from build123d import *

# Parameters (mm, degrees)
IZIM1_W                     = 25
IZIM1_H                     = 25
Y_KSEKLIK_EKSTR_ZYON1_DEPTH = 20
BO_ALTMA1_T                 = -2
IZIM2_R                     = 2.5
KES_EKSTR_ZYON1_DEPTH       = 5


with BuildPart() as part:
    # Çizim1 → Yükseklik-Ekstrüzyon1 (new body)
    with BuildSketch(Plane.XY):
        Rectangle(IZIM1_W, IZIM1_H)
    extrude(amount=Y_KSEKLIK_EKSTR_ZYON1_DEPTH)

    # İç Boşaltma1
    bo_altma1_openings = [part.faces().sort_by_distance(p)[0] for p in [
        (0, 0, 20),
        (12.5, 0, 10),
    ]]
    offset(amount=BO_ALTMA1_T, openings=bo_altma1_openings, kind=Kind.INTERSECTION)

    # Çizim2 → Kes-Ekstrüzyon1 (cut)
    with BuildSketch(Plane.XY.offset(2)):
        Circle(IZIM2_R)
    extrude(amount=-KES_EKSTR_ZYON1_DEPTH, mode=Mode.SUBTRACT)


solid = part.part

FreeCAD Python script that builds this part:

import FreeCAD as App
import Part
import Sketcher

V = App.Vector


def faces_at(feature, points):
    """Names of the faces that lie closest to the given points."""
    faces = feature.Shape.Faces
    near = lambda p: min(range(len(faces)), key=lambda i: faces[i].distToShape(Part.Vertex(*p))[0])
    return sorted({f"Face{near(p) + 1}" for p in points})

doc = App.newDocument("Part")
params = doc.addObject("Spreadsheet::Sheet", "Params")
for row, (alias, value) in enumerate([
    ("sketch1_width", "25 mm"),
    ("pad1_length", "20 mm"),
    ("thickness_wall", "2 mm"),
    ("sketch2_diameter", "5 mm"),
    ("pocket1_length", "5 mm"),
], start=1):
    params.set(f"A{row}", alias)
    params.set(f"B{row}", "=" + value)
    params.setAlias(f"B{row}", alias)

body = doc.addObject("PartDesign::Body", "Body")

# Sketch on XY plane
sketch1 = body.newObject("Sketcher::SketchObject", "Sketch")
sketch1.AttachmentSupport = (doc.getObject("XY_Plane"), [""])
sketch1.MapMode = "FlatFace"
sketch1.addGeometry([
    Part.LineSegment(V(-12, 12, 0), V(-12, -12, 0)),
    Part.LineSegment(V(-12, -12, 0), V(12, -12, 0)),
    Part.LineSegment(V(12, -12, 0), V(12, 12, 0)),
    Part.LineSegment(V(12, 12, 0), V(-12, 12, 0)),
], False)
sketch1.addConstraint([
    Sketcher.Constraint("Coincident", 0, 2, 1, 1),
    Sketcher.Constraint("Coincident", 1, 2, 2, 1),
    Sketcher.Constraint("Coincident", 2, 2, 3, 1),
    Sketcher.Constraint("Coincident", 3, 2, 0, 1),
    Sketcher.Constraint("Vertical", 0),
    Sketcher.Constraint("Horizontal", 1),
    Sketcher.Constraint("Vertical", 2),
    Sketcher.Constraint("Horizontal", 3),
    Sketcher.Constraint("Symmetric", 0, 2, 2, 2, -1, 1),
    Sketcher.Constraint("Equal", 3, 0),
    Sketcher.Constraint("DistanceX", 1, 1, 1, 2, 25.0),
])
sketch1.setExpression("Constraints[10]", "Params.sketch1_width")
pad1 = body.newObject("PartDesign::Pad", "Pad")
pad1.Profile = sketch1
pad1.setExpression("Length", "Params.pad1_length")
doc.recompute()

thickness = body.newObject("PartDesign::Thickness", "Thickness")
thickness.Base = (pad1, faces_at(pad1, [(0, 0, 20), (12.5, 0, 10)]))
thickness.setExpression("Value", "Params.thickness_wall")
thickness.Reversed = True
thickness.Join = "Intersection"

# Sketch on XY plane
sketch2 = body.newObject("Sketcher::SketchObject", "Sketch001")
sketch2.AttachmentSupport = (doc.getObject("XY_Plane"), [""])
sketch2.MapMode = "FlatFace"
sketch2.AttachmentOffset = App.Placement(V(0, 0, 2), App.Rotation())
sketch2.addGeometry(Part.Circle(V(0, 0, 0), V(0, 0, 1), 2.5), False)
sketch2.addConstraint([
    Sketcher.Constraint("Coincident", 0, 3, -1, 1),
    Sketcher.Constraint("Diameter", 0, 5.0),
])
sketch2.setExpression("Constraints[1]", "Params.sketch2_diameter")
pocket1 = body.newObject("PartDesign::Pocket", "Pocket")
pocket1.Profile = sketch2
pocket1.setExpression("Length", "Params.pocket1_length")

doc.recompute()
